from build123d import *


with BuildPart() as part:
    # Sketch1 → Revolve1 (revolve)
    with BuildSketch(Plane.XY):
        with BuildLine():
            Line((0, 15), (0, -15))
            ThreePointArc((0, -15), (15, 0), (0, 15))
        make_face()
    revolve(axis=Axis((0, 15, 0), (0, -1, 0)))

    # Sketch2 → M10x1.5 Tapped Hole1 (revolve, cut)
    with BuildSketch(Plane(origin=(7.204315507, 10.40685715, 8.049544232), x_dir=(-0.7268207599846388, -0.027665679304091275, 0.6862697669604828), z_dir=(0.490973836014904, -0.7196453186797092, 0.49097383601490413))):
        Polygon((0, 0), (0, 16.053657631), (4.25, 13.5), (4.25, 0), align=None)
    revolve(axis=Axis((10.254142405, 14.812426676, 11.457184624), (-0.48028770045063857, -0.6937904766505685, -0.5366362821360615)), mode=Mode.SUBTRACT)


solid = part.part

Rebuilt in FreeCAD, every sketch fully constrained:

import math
import FreeCAD as App
import Part
import Sketcher
from FreeCAD import Vector
Q = App.Units.Quantity


def add_polygon(sketch, points):
    """Adds a closed chain of lines whose ends are joined by coincident constraints."""
    first, n = sketch.GeometryCount, len(points)
    for a, b in zip(points, points[1:] + points[:1]):
        sketch.addGeometry(Part.LineSegment(App.Vector(*a, 0), App.Vector(*b, 0)), False)
    for i in range(n):
        sketch.addConstraint(Sketcher.Constraint("Coincident", first + i, 2, first + (i + 1) % n, 1))

doc = App.newDocument("Part")
body = doc.addObject("PartDesign::Body", "Body")

# Sketch on XY plane
sketch1 = doc.addObject("Sketcher::SketchObject", "Sketch")
body.addObject(sketch1)
sketch1.AttachmentSupport = (doc.XY_Plane, [""])
sketch1.MapMode = "FlatFace"
sketch1.addGeometry([
    Part.LineSegment(Vector(0, 15, 0), Vector(0, -15, 0)),
    Part.ArcOfCircle(Part.Circle(Vector(0, 0, 0), Vector(0, 0, 1), 15), math.radians(-90), math.radians(90)),
], False)
sketch1.addConstraint([
    Sketcher.Constraint("Coincident", 0, 1, 1, 2),
    Sketcher.Constraint("Coincident", 1, 1, 0, 2),
    Sketcher.Constraint("Vertical", 0),
    Sketcher.Constraint("Coincident", 1, 3, -1, 1),
    Sketcher.Constraint("PointOnObject", 0, 1, -2),
    Sketcher.Constraint("Radius", 1, 15.0),
])
revolution = doc.addObject("PartDesign::Revolution", "Revolution")
body.addObject(revolution)
revolution.Profile = sketch1
revolution.ReferenceAxis = (sketch1, ["V_Axis"])
revolution.Angle = 360

# Sketch on an angled plane
sketch2 = doc.addObject("Sketcher::SketchObject", "Sketch001")
body.addObject(sketch2)
sketch2.Placement = App.Placement(Vector(7.204316, 10.406857, 8.049544), App.Rotation(Vector(-0.72682076, -0.027665679, 0.686269767), Vector(-0.480287701, -0.693790477, -0.536636282), Vector(0.490973836, -0.719645319, 0.490973836), "ZXY"))
add_polygon(sketch2, [(0, 16.1), (0, 0), (4.2, 0), (4.2, 13.5)])  # lines 0-3
sketch2.addConstraint([
    Sketcher.Constraint("Vertical", 0),
    Sketcher.Constraint("Horizontal", 1),
    Sketcher.Constraint("Vertical", 2),
    Sketcher.Constraint("Coincident", 0, 2, -1, 1),
    Sketcher.Constraint("Angle", 3, Q("149 deg")),
    Sketcher.Constraint("DistanceY", 2, 1, 2, 2, 13.5),
    Sketcher.Constraint("DistanceX", 1, 1, 1, 2, 4.25),
])
groove = doc.addObject("PartDesign::Groove", "Groove")
body.addObject(groove)
groove.Profile = sketch2
groove.ReferenceAxis = (sketch2, ["V_Axis"])
groove.Angle = 360

doc.recompute()
